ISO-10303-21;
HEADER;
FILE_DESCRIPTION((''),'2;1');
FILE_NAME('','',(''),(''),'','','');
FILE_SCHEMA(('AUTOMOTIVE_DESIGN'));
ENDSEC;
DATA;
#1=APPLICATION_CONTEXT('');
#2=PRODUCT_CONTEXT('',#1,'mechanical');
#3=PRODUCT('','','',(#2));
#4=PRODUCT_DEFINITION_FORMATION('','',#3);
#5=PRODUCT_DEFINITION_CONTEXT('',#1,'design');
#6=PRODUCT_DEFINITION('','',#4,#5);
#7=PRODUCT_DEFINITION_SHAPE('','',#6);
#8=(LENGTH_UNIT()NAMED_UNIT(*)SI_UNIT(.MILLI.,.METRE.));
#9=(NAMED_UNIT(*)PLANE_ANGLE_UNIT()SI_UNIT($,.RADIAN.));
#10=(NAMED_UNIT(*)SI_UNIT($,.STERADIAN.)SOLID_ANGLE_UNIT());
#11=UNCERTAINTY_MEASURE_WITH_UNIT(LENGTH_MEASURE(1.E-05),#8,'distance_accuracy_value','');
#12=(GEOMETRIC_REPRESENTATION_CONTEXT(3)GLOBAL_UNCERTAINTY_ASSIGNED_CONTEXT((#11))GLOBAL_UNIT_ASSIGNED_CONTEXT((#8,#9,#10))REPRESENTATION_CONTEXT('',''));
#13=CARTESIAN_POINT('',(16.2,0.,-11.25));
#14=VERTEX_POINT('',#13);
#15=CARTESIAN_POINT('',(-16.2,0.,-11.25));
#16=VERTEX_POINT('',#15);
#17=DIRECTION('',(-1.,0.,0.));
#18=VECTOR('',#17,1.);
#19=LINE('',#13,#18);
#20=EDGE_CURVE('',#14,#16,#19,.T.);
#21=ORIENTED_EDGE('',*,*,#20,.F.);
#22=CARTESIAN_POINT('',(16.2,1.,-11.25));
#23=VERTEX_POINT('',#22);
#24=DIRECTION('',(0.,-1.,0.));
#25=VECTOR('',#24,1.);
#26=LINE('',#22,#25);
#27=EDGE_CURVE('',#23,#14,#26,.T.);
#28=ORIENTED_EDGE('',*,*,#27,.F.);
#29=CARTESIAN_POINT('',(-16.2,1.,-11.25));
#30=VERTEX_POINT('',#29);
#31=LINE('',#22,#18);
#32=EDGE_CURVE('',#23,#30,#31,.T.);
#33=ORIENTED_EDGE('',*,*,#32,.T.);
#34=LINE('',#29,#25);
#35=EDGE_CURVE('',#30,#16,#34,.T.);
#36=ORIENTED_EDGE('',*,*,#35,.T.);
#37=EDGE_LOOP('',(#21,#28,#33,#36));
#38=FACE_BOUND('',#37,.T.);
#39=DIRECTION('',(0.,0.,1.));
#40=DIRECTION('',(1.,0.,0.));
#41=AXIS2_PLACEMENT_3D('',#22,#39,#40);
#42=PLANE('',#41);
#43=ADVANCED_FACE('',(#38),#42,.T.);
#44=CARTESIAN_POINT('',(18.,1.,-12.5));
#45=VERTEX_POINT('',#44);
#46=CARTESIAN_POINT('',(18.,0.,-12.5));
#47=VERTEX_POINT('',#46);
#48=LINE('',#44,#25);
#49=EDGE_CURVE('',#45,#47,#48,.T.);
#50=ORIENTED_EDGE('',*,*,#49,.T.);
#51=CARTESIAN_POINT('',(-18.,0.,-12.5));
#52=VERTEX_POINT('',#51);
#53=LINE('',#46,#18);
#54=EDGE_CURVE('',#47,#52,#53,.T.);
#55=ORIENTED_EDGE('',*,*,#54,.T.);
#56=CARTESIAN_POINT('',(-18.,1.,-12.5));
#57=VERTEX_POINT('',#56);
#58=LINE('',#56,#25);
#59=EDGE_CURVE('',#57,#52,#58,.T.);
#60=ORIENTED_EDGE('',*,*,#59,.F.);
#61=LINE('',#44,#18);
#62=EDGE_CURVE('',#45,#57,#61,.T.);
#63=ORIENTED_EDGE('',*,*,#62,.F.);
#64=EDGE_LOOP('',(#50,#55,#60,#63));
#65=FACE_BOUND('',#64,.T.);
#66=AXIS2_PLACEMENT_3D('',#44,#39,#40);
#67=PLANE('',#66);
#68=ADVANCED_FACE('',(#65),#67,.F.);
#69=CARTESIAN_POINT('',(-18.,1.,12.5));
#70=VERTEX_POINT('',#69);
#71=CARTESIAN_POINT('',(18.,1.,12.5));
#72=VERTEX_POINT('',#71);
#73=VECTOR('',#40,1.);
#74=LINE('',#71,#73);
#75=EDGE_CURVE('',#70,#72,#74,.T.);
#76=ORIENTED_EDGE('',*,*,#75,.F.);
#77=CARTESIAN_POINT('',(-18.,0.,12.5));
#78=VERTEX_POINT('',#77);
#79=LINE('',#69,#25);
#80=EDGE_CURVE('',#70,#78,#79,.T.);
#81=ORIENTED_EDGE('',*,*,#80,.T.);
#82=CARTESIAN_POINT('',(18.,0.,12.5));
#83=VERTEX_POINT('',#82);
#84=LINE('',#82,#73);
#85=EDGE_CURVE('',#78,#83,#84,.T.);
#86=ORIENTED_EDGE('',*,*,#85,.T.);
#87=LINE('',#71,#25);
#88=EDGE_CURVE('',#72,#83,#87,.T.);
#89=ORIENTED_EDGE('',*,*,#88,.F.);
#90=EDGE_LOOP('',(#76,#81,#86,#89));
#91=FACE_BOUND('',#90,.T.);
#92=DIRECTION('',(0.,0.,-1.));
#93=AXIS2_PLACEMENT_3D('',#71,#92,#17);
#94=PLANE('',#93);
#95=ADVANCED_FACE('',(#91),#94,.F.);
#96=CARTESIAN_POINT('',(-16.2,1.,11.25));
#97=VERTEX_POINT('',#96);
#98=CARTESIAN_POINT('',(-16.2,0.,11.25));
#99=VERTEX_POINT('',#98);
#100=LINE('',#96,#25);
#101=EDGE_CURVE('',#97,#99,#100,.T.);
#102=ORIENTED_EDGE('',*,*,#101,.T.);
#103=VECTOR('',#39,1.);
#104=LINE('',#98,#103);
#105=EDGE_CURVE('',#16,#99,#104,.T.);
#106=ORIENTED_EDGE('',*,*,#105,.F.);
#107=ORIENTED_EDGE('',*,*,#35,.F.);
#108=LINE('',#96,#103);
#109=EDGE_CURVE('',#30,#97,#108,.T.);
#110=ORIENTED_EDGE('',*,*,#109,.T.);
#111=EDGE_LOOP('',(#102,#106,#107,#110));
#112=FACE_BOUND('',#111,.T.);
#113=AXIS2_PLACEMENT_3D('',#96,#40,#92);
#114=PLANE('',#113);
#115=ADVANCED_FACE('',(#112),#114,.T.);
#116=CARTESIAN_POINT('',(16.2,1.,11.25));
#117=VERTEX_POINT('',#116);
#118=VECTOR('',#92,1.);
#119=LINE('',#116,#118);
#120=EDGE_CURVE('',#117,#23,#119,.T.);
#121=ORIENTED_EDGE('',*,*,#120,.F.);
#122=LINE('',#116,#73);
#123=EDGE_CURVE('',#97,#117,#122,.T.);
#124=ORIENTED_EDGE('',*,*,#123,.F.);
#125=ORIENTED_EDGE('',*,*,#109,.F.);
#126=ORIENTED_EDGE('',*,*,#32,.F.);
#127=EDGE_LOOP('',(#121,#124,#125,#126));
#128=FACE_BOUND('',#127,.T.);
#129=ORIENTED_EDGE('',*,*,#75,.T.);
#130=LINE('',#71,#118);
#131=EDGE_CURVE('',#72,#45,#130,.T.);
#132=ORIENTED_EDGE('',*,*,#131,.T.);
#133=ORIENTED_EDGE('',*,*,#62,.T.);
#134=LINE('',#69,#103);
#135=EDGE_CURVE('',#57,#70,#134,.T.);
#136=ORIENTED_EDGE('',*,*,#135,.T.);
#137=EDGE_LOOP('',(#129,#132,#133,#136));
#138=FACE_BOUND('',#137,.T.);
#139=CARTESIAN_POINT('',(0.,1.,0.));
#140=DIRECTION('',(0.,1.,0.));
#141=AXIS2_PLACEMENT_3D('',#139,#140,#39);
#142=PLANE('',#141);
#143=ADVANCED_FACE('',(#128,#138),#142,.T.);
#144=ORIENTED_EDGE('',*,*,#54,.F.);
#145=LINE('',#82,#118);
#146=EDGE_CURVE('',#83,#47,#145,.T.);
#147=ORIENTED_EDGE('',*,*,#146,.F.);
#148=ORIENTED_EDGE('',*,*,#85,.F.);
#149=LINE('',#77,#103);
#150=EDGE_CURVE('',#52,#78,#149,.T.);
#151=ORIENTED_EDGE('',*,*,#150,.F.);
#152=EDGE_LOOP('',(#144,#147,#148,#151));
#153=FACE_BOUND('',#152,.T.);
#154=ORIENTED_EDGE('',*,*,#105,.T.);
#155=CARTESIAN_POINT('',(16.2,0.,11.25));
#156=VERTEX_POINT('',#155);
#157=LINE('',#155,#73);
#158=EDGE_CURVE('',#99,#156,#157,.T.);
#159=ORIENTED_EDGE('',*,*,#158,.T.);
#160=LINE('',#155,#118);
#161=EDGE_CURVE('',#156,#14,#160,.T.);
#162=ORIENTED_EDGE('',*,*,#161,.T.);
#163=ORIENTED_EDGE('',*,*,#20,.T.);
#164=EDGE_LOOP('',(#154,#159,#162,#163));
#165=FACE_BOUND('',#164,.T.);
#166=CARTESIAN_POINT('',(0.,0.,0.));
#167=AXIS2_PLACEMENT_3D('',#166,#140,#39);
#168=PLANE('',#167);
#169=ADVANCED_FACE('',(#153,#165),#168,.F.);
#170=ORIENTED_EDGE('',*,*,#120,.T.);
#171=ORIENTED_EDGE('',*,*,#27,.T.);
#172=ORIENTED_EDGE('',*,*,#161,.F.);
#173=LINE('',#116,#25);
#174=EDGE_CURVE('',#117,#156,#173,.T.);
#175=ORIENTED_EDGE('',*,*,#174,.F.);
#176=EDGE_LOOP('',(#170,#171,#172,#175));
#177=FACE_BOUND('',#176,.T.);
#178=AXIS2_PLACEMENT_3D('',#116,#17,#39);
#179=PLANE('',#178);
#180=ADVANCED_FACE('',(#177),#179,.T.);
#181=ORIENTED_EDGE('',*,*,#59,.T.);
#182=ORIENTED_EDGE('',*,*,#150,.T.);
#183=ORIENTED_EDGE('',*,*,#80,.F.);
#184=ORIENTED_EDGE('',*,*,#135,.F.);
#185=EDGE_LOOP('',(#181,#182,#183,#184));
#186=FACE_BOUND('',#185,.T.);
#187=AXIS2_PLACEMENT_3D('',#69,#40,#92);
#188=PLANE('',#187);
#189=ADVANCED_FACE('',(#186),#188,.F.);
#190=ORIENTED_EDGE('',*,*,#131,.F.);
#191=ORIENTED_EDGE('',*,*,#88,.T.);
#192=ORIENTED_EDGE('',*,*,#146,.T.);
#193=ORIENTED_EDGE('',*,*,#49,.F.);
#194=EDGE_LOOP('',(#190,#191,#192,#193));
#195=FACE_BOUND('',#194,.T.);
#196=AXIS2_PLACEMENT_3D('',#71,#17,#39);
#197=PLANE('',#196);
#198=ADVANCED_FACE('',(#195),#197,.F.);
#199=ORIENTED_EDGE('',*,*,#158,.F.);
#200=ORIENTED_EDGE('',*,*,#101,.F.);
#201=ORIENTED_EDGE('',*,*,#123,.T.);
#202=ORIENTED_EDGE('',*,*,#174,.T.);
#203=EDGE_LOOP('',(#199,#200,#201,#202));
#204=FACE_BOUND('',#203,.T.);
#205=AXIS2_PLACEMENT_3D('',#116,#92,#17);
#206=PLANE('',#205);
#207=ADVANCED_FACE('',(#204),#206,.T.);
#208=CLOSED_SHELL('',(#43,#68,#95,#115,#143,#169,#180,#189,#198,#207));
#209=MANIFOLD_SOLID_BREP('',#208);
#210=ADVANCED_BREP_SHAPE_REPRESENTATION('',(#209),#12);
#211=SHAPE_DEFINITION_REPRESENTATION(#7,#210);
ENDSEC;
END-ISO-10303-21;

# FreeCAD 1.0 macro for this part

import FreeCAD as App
import Part
import Sketcher
Q = App.Units.Quantity

doc = App.newDocument("Part")
body = doc.addObject("PartDesign::Body", "Body")

sketch1 = body.newObject("Sketcher::SketchObject", "Sketch")
sketch1.AttachmentSupport = (doc.getObject("XZ_Plane"), [""])
sketch1.MapMode = "FlatFace"
sketch1.addGeometry(Part.LineSegment(App.Vector(-18, -12, 0), App.Vector(-18, 12, 0)), False)
sketch1.addGeometry(Part.LineSegment(App.Vector(-18, 12, 0), App.Vector(18, 12, 0)), False)
sketch1.addGeometry(Part.LineSegment(App.Vector(18, 12, 0), App.Vector(18, -12, 0)), False)
sketch1.addGeometry(Part.LineSegment(App.Vector(18, -12, 0), App.Vector(-18, -12, 0)), False)
sketch1.addGeometry(Part.LineSegment(App.Vector(16, 11, 0), App.Vector(-16, 11, 0)), False)
sketch1.addGeometry(Part.LineSegment(App.Vector(-16, 11, 0), App.Vector(-16, -11, 0)), False)
sketch1.addGeometry(Part.LineSegment(App.Vector(-16, -11, 0), App.Vector(16, -11, 0)), False)
sketch1.addGeometry(Part.LineSegment(App.Vector(16, -11, 0), App.Vector(16, 11, 0)), False)
sketch1.addConstraint(Sketcher.Constraint("Coincident", 0, 2, 1, 1))
sketch1.addConstraint(Sketcher.Constraint("Coincident", 1, 2, 2, 1))
sketch1.addConstraint(Sketcher.Constraint("Coincident", 2, 2, 3, 1))
sketch1.addConstraint(Sketcher.Constraint("Coincident", 3, 2, 0, 1))
sketch1.addConstraint(Sketcher.Constraint("Coincident", 4, 2, 5, 1))
sketch1.addConstraint(Sketcher.Constraint("Coincident", 5, 2, 6, 1))
sketch1.addConstraint(Sketcher.Constraint("Coincident", 6, 2, 7, 1))
sketch1.addConstraint(Sketcher.Constraint("Coincident", 7, 2, 4, 1))
sketch1.addConstraint(Sketcher.Constraint("Vertical", 0))
sketch1.addConstraint(Sketcher.Constraint("Horizontal", 1))
sketch1.addConstraint(Sketcher.Constraint("Vertical", 2))
sketch1.addConstraint(Sketcher.Constraint("Horizontal", 3))
sketch1.addConstraint(Sketcher.Constraint("Horizontal", 4))
sketch1.addConstraint(Sketcher.Constraint("Vertical", 5))
sketch1.addConstraint(Sketcher.Constraint("Horizontal", 6))
sketch1.addConstraint(Sketcher.Constraint("Vertical", 7))
sketch1.addConstraint(Sketcher.Constraint("Symmetric", 0, 2, 2, 2, -1, 1))
sketch1.addConstraint(Sketcher.Constraint("Symmetric", 4, 2, 6, 2, -1, 1))
sketch1.addConstraint(Sketcher.Constraint("DistanceX", 1, 1, 1, 2, Q("36 mm")))
sketch1.addConstraint(Sketcher.Constraint("DistanceY", 0, 1, 0, 2, Q("25 mm")))
sketch1.addConstraint(Sketcher.Constraint("DistanceX", 4, 2, 4, 1, Q("32.4 mm")))
sketch1.addConstraint(Sketcher.Constraint("DistanceY", 5, 2, 5, 1, Q("22.5 mm")))
pad1 = body.newObject("PartDesign::Pad", "Pad")
pad1.Profile = sketch1
pad1.Length = 1
pad1.Reversed = True

doc.recompute()
